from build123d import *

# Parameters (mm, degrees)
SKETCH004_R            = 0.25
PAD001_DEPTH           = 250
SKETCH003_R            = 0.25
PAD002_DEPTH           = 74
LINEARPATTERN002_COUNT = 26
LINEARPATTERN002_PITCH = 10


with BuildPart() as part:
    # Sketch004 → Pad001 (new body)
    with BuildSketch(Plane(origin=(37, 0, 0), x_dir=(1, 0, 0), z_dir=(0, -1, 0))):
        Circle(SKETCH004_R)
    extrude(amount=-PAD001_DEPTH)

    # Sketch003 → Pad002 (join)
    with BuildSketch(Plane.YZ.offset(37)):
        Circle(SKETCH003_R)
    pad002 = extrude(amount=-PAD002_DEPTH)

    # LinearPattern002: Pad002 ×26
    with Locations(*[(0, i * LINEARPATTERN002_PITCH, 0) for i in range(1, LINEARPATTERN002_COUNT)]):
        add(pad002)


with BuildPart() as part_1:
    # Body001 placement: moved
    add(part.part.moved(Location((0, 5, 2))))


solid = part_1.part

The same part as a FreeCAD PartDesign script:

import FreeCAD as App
import Part
import Sketcher
Q = App.Units.Quantity

doc = App.newDocument("Part")
body = doc.addObject("PartDesign::Body", "Body")

sketch1 = body.newObject("Sketcher::SketchObject", "Sketch")
sketch1.AttachmentSupport = (doc.getObject("XZ_Plane"), [""])
sketch1.MapMode = "FlatFace"
sketch1.addGeometry(Part.Circle(App.Vector(37, 0, 0), App.Vector(0, 0, 1), 0.25), False)
sketch1.addConstraint([
    Sketcher.Constraint("PointOnObject", 0, 3, -1),
    Sketcher.Constraint("Diameter", 0, Q("0.5 mm")),
    Sketcher.Constraint("DistanceX", -1, 1, 0, 3, Q("37 mm")),
])
pad1 = body.newObject("PartDesign::Pad", "Pad")
pad1.Profile = sketch1
pad1.Length = 250
pad1.Reversed = True

sketch2 = body.newObject("Sketcher::SketchObject", "Sketch001")
sketch2.AttachmentSupport = (doc.getObject("YZ_Plane"), [""])
sketch2.MapMode = "FlatFace"
sketch2.AttachmentOffset = App.Placement(App.Vector(0, 0, 37), App.Rotation())
sketch2.addGeometry(Part.Circle(App.Vector(0, 0, 0), App.Vector(0, 0, 1), 0.25), False)
sketch2.addConstraint([
    Sketcher.Constraint("Coincident", 0, 3, -1, 1),
    Sketcher.Constraint("Diameter", 0, Q("0.5 mm")),
])
pad2 = body.newObject("PartDesign::Pad", "Pad001")
pad2.Profile = sketch2
pad2.Length = 74
pad2.Reversed = True
doc.recompute()

linearpattern = body.newObject("PartDesign::LinearPattern", "LinearPattern")
linearpattern.Originals = [pad2]
linearpattern.Direction = (doc.getObject("Y_Axis"), [""])
linearpattern.Mode = "offset"
linearpattern.Offset = 10
linearpattern.Occurrences = 26
body.Tip = linearpattern
body2 = doc.addObject("PartDesign::Body", "Body001")
doc.recompute()

body.Placement = App.Placement(App.Vector(0, 5, 2), App.Rotation(App.Vector(0, 0, 1), 0))
boolean = body2.newObject("PartDesign::Boolean", "Boolean")
boolean.Type = "Fuse"
boolean.addObjects([body])

doc.recompute()
